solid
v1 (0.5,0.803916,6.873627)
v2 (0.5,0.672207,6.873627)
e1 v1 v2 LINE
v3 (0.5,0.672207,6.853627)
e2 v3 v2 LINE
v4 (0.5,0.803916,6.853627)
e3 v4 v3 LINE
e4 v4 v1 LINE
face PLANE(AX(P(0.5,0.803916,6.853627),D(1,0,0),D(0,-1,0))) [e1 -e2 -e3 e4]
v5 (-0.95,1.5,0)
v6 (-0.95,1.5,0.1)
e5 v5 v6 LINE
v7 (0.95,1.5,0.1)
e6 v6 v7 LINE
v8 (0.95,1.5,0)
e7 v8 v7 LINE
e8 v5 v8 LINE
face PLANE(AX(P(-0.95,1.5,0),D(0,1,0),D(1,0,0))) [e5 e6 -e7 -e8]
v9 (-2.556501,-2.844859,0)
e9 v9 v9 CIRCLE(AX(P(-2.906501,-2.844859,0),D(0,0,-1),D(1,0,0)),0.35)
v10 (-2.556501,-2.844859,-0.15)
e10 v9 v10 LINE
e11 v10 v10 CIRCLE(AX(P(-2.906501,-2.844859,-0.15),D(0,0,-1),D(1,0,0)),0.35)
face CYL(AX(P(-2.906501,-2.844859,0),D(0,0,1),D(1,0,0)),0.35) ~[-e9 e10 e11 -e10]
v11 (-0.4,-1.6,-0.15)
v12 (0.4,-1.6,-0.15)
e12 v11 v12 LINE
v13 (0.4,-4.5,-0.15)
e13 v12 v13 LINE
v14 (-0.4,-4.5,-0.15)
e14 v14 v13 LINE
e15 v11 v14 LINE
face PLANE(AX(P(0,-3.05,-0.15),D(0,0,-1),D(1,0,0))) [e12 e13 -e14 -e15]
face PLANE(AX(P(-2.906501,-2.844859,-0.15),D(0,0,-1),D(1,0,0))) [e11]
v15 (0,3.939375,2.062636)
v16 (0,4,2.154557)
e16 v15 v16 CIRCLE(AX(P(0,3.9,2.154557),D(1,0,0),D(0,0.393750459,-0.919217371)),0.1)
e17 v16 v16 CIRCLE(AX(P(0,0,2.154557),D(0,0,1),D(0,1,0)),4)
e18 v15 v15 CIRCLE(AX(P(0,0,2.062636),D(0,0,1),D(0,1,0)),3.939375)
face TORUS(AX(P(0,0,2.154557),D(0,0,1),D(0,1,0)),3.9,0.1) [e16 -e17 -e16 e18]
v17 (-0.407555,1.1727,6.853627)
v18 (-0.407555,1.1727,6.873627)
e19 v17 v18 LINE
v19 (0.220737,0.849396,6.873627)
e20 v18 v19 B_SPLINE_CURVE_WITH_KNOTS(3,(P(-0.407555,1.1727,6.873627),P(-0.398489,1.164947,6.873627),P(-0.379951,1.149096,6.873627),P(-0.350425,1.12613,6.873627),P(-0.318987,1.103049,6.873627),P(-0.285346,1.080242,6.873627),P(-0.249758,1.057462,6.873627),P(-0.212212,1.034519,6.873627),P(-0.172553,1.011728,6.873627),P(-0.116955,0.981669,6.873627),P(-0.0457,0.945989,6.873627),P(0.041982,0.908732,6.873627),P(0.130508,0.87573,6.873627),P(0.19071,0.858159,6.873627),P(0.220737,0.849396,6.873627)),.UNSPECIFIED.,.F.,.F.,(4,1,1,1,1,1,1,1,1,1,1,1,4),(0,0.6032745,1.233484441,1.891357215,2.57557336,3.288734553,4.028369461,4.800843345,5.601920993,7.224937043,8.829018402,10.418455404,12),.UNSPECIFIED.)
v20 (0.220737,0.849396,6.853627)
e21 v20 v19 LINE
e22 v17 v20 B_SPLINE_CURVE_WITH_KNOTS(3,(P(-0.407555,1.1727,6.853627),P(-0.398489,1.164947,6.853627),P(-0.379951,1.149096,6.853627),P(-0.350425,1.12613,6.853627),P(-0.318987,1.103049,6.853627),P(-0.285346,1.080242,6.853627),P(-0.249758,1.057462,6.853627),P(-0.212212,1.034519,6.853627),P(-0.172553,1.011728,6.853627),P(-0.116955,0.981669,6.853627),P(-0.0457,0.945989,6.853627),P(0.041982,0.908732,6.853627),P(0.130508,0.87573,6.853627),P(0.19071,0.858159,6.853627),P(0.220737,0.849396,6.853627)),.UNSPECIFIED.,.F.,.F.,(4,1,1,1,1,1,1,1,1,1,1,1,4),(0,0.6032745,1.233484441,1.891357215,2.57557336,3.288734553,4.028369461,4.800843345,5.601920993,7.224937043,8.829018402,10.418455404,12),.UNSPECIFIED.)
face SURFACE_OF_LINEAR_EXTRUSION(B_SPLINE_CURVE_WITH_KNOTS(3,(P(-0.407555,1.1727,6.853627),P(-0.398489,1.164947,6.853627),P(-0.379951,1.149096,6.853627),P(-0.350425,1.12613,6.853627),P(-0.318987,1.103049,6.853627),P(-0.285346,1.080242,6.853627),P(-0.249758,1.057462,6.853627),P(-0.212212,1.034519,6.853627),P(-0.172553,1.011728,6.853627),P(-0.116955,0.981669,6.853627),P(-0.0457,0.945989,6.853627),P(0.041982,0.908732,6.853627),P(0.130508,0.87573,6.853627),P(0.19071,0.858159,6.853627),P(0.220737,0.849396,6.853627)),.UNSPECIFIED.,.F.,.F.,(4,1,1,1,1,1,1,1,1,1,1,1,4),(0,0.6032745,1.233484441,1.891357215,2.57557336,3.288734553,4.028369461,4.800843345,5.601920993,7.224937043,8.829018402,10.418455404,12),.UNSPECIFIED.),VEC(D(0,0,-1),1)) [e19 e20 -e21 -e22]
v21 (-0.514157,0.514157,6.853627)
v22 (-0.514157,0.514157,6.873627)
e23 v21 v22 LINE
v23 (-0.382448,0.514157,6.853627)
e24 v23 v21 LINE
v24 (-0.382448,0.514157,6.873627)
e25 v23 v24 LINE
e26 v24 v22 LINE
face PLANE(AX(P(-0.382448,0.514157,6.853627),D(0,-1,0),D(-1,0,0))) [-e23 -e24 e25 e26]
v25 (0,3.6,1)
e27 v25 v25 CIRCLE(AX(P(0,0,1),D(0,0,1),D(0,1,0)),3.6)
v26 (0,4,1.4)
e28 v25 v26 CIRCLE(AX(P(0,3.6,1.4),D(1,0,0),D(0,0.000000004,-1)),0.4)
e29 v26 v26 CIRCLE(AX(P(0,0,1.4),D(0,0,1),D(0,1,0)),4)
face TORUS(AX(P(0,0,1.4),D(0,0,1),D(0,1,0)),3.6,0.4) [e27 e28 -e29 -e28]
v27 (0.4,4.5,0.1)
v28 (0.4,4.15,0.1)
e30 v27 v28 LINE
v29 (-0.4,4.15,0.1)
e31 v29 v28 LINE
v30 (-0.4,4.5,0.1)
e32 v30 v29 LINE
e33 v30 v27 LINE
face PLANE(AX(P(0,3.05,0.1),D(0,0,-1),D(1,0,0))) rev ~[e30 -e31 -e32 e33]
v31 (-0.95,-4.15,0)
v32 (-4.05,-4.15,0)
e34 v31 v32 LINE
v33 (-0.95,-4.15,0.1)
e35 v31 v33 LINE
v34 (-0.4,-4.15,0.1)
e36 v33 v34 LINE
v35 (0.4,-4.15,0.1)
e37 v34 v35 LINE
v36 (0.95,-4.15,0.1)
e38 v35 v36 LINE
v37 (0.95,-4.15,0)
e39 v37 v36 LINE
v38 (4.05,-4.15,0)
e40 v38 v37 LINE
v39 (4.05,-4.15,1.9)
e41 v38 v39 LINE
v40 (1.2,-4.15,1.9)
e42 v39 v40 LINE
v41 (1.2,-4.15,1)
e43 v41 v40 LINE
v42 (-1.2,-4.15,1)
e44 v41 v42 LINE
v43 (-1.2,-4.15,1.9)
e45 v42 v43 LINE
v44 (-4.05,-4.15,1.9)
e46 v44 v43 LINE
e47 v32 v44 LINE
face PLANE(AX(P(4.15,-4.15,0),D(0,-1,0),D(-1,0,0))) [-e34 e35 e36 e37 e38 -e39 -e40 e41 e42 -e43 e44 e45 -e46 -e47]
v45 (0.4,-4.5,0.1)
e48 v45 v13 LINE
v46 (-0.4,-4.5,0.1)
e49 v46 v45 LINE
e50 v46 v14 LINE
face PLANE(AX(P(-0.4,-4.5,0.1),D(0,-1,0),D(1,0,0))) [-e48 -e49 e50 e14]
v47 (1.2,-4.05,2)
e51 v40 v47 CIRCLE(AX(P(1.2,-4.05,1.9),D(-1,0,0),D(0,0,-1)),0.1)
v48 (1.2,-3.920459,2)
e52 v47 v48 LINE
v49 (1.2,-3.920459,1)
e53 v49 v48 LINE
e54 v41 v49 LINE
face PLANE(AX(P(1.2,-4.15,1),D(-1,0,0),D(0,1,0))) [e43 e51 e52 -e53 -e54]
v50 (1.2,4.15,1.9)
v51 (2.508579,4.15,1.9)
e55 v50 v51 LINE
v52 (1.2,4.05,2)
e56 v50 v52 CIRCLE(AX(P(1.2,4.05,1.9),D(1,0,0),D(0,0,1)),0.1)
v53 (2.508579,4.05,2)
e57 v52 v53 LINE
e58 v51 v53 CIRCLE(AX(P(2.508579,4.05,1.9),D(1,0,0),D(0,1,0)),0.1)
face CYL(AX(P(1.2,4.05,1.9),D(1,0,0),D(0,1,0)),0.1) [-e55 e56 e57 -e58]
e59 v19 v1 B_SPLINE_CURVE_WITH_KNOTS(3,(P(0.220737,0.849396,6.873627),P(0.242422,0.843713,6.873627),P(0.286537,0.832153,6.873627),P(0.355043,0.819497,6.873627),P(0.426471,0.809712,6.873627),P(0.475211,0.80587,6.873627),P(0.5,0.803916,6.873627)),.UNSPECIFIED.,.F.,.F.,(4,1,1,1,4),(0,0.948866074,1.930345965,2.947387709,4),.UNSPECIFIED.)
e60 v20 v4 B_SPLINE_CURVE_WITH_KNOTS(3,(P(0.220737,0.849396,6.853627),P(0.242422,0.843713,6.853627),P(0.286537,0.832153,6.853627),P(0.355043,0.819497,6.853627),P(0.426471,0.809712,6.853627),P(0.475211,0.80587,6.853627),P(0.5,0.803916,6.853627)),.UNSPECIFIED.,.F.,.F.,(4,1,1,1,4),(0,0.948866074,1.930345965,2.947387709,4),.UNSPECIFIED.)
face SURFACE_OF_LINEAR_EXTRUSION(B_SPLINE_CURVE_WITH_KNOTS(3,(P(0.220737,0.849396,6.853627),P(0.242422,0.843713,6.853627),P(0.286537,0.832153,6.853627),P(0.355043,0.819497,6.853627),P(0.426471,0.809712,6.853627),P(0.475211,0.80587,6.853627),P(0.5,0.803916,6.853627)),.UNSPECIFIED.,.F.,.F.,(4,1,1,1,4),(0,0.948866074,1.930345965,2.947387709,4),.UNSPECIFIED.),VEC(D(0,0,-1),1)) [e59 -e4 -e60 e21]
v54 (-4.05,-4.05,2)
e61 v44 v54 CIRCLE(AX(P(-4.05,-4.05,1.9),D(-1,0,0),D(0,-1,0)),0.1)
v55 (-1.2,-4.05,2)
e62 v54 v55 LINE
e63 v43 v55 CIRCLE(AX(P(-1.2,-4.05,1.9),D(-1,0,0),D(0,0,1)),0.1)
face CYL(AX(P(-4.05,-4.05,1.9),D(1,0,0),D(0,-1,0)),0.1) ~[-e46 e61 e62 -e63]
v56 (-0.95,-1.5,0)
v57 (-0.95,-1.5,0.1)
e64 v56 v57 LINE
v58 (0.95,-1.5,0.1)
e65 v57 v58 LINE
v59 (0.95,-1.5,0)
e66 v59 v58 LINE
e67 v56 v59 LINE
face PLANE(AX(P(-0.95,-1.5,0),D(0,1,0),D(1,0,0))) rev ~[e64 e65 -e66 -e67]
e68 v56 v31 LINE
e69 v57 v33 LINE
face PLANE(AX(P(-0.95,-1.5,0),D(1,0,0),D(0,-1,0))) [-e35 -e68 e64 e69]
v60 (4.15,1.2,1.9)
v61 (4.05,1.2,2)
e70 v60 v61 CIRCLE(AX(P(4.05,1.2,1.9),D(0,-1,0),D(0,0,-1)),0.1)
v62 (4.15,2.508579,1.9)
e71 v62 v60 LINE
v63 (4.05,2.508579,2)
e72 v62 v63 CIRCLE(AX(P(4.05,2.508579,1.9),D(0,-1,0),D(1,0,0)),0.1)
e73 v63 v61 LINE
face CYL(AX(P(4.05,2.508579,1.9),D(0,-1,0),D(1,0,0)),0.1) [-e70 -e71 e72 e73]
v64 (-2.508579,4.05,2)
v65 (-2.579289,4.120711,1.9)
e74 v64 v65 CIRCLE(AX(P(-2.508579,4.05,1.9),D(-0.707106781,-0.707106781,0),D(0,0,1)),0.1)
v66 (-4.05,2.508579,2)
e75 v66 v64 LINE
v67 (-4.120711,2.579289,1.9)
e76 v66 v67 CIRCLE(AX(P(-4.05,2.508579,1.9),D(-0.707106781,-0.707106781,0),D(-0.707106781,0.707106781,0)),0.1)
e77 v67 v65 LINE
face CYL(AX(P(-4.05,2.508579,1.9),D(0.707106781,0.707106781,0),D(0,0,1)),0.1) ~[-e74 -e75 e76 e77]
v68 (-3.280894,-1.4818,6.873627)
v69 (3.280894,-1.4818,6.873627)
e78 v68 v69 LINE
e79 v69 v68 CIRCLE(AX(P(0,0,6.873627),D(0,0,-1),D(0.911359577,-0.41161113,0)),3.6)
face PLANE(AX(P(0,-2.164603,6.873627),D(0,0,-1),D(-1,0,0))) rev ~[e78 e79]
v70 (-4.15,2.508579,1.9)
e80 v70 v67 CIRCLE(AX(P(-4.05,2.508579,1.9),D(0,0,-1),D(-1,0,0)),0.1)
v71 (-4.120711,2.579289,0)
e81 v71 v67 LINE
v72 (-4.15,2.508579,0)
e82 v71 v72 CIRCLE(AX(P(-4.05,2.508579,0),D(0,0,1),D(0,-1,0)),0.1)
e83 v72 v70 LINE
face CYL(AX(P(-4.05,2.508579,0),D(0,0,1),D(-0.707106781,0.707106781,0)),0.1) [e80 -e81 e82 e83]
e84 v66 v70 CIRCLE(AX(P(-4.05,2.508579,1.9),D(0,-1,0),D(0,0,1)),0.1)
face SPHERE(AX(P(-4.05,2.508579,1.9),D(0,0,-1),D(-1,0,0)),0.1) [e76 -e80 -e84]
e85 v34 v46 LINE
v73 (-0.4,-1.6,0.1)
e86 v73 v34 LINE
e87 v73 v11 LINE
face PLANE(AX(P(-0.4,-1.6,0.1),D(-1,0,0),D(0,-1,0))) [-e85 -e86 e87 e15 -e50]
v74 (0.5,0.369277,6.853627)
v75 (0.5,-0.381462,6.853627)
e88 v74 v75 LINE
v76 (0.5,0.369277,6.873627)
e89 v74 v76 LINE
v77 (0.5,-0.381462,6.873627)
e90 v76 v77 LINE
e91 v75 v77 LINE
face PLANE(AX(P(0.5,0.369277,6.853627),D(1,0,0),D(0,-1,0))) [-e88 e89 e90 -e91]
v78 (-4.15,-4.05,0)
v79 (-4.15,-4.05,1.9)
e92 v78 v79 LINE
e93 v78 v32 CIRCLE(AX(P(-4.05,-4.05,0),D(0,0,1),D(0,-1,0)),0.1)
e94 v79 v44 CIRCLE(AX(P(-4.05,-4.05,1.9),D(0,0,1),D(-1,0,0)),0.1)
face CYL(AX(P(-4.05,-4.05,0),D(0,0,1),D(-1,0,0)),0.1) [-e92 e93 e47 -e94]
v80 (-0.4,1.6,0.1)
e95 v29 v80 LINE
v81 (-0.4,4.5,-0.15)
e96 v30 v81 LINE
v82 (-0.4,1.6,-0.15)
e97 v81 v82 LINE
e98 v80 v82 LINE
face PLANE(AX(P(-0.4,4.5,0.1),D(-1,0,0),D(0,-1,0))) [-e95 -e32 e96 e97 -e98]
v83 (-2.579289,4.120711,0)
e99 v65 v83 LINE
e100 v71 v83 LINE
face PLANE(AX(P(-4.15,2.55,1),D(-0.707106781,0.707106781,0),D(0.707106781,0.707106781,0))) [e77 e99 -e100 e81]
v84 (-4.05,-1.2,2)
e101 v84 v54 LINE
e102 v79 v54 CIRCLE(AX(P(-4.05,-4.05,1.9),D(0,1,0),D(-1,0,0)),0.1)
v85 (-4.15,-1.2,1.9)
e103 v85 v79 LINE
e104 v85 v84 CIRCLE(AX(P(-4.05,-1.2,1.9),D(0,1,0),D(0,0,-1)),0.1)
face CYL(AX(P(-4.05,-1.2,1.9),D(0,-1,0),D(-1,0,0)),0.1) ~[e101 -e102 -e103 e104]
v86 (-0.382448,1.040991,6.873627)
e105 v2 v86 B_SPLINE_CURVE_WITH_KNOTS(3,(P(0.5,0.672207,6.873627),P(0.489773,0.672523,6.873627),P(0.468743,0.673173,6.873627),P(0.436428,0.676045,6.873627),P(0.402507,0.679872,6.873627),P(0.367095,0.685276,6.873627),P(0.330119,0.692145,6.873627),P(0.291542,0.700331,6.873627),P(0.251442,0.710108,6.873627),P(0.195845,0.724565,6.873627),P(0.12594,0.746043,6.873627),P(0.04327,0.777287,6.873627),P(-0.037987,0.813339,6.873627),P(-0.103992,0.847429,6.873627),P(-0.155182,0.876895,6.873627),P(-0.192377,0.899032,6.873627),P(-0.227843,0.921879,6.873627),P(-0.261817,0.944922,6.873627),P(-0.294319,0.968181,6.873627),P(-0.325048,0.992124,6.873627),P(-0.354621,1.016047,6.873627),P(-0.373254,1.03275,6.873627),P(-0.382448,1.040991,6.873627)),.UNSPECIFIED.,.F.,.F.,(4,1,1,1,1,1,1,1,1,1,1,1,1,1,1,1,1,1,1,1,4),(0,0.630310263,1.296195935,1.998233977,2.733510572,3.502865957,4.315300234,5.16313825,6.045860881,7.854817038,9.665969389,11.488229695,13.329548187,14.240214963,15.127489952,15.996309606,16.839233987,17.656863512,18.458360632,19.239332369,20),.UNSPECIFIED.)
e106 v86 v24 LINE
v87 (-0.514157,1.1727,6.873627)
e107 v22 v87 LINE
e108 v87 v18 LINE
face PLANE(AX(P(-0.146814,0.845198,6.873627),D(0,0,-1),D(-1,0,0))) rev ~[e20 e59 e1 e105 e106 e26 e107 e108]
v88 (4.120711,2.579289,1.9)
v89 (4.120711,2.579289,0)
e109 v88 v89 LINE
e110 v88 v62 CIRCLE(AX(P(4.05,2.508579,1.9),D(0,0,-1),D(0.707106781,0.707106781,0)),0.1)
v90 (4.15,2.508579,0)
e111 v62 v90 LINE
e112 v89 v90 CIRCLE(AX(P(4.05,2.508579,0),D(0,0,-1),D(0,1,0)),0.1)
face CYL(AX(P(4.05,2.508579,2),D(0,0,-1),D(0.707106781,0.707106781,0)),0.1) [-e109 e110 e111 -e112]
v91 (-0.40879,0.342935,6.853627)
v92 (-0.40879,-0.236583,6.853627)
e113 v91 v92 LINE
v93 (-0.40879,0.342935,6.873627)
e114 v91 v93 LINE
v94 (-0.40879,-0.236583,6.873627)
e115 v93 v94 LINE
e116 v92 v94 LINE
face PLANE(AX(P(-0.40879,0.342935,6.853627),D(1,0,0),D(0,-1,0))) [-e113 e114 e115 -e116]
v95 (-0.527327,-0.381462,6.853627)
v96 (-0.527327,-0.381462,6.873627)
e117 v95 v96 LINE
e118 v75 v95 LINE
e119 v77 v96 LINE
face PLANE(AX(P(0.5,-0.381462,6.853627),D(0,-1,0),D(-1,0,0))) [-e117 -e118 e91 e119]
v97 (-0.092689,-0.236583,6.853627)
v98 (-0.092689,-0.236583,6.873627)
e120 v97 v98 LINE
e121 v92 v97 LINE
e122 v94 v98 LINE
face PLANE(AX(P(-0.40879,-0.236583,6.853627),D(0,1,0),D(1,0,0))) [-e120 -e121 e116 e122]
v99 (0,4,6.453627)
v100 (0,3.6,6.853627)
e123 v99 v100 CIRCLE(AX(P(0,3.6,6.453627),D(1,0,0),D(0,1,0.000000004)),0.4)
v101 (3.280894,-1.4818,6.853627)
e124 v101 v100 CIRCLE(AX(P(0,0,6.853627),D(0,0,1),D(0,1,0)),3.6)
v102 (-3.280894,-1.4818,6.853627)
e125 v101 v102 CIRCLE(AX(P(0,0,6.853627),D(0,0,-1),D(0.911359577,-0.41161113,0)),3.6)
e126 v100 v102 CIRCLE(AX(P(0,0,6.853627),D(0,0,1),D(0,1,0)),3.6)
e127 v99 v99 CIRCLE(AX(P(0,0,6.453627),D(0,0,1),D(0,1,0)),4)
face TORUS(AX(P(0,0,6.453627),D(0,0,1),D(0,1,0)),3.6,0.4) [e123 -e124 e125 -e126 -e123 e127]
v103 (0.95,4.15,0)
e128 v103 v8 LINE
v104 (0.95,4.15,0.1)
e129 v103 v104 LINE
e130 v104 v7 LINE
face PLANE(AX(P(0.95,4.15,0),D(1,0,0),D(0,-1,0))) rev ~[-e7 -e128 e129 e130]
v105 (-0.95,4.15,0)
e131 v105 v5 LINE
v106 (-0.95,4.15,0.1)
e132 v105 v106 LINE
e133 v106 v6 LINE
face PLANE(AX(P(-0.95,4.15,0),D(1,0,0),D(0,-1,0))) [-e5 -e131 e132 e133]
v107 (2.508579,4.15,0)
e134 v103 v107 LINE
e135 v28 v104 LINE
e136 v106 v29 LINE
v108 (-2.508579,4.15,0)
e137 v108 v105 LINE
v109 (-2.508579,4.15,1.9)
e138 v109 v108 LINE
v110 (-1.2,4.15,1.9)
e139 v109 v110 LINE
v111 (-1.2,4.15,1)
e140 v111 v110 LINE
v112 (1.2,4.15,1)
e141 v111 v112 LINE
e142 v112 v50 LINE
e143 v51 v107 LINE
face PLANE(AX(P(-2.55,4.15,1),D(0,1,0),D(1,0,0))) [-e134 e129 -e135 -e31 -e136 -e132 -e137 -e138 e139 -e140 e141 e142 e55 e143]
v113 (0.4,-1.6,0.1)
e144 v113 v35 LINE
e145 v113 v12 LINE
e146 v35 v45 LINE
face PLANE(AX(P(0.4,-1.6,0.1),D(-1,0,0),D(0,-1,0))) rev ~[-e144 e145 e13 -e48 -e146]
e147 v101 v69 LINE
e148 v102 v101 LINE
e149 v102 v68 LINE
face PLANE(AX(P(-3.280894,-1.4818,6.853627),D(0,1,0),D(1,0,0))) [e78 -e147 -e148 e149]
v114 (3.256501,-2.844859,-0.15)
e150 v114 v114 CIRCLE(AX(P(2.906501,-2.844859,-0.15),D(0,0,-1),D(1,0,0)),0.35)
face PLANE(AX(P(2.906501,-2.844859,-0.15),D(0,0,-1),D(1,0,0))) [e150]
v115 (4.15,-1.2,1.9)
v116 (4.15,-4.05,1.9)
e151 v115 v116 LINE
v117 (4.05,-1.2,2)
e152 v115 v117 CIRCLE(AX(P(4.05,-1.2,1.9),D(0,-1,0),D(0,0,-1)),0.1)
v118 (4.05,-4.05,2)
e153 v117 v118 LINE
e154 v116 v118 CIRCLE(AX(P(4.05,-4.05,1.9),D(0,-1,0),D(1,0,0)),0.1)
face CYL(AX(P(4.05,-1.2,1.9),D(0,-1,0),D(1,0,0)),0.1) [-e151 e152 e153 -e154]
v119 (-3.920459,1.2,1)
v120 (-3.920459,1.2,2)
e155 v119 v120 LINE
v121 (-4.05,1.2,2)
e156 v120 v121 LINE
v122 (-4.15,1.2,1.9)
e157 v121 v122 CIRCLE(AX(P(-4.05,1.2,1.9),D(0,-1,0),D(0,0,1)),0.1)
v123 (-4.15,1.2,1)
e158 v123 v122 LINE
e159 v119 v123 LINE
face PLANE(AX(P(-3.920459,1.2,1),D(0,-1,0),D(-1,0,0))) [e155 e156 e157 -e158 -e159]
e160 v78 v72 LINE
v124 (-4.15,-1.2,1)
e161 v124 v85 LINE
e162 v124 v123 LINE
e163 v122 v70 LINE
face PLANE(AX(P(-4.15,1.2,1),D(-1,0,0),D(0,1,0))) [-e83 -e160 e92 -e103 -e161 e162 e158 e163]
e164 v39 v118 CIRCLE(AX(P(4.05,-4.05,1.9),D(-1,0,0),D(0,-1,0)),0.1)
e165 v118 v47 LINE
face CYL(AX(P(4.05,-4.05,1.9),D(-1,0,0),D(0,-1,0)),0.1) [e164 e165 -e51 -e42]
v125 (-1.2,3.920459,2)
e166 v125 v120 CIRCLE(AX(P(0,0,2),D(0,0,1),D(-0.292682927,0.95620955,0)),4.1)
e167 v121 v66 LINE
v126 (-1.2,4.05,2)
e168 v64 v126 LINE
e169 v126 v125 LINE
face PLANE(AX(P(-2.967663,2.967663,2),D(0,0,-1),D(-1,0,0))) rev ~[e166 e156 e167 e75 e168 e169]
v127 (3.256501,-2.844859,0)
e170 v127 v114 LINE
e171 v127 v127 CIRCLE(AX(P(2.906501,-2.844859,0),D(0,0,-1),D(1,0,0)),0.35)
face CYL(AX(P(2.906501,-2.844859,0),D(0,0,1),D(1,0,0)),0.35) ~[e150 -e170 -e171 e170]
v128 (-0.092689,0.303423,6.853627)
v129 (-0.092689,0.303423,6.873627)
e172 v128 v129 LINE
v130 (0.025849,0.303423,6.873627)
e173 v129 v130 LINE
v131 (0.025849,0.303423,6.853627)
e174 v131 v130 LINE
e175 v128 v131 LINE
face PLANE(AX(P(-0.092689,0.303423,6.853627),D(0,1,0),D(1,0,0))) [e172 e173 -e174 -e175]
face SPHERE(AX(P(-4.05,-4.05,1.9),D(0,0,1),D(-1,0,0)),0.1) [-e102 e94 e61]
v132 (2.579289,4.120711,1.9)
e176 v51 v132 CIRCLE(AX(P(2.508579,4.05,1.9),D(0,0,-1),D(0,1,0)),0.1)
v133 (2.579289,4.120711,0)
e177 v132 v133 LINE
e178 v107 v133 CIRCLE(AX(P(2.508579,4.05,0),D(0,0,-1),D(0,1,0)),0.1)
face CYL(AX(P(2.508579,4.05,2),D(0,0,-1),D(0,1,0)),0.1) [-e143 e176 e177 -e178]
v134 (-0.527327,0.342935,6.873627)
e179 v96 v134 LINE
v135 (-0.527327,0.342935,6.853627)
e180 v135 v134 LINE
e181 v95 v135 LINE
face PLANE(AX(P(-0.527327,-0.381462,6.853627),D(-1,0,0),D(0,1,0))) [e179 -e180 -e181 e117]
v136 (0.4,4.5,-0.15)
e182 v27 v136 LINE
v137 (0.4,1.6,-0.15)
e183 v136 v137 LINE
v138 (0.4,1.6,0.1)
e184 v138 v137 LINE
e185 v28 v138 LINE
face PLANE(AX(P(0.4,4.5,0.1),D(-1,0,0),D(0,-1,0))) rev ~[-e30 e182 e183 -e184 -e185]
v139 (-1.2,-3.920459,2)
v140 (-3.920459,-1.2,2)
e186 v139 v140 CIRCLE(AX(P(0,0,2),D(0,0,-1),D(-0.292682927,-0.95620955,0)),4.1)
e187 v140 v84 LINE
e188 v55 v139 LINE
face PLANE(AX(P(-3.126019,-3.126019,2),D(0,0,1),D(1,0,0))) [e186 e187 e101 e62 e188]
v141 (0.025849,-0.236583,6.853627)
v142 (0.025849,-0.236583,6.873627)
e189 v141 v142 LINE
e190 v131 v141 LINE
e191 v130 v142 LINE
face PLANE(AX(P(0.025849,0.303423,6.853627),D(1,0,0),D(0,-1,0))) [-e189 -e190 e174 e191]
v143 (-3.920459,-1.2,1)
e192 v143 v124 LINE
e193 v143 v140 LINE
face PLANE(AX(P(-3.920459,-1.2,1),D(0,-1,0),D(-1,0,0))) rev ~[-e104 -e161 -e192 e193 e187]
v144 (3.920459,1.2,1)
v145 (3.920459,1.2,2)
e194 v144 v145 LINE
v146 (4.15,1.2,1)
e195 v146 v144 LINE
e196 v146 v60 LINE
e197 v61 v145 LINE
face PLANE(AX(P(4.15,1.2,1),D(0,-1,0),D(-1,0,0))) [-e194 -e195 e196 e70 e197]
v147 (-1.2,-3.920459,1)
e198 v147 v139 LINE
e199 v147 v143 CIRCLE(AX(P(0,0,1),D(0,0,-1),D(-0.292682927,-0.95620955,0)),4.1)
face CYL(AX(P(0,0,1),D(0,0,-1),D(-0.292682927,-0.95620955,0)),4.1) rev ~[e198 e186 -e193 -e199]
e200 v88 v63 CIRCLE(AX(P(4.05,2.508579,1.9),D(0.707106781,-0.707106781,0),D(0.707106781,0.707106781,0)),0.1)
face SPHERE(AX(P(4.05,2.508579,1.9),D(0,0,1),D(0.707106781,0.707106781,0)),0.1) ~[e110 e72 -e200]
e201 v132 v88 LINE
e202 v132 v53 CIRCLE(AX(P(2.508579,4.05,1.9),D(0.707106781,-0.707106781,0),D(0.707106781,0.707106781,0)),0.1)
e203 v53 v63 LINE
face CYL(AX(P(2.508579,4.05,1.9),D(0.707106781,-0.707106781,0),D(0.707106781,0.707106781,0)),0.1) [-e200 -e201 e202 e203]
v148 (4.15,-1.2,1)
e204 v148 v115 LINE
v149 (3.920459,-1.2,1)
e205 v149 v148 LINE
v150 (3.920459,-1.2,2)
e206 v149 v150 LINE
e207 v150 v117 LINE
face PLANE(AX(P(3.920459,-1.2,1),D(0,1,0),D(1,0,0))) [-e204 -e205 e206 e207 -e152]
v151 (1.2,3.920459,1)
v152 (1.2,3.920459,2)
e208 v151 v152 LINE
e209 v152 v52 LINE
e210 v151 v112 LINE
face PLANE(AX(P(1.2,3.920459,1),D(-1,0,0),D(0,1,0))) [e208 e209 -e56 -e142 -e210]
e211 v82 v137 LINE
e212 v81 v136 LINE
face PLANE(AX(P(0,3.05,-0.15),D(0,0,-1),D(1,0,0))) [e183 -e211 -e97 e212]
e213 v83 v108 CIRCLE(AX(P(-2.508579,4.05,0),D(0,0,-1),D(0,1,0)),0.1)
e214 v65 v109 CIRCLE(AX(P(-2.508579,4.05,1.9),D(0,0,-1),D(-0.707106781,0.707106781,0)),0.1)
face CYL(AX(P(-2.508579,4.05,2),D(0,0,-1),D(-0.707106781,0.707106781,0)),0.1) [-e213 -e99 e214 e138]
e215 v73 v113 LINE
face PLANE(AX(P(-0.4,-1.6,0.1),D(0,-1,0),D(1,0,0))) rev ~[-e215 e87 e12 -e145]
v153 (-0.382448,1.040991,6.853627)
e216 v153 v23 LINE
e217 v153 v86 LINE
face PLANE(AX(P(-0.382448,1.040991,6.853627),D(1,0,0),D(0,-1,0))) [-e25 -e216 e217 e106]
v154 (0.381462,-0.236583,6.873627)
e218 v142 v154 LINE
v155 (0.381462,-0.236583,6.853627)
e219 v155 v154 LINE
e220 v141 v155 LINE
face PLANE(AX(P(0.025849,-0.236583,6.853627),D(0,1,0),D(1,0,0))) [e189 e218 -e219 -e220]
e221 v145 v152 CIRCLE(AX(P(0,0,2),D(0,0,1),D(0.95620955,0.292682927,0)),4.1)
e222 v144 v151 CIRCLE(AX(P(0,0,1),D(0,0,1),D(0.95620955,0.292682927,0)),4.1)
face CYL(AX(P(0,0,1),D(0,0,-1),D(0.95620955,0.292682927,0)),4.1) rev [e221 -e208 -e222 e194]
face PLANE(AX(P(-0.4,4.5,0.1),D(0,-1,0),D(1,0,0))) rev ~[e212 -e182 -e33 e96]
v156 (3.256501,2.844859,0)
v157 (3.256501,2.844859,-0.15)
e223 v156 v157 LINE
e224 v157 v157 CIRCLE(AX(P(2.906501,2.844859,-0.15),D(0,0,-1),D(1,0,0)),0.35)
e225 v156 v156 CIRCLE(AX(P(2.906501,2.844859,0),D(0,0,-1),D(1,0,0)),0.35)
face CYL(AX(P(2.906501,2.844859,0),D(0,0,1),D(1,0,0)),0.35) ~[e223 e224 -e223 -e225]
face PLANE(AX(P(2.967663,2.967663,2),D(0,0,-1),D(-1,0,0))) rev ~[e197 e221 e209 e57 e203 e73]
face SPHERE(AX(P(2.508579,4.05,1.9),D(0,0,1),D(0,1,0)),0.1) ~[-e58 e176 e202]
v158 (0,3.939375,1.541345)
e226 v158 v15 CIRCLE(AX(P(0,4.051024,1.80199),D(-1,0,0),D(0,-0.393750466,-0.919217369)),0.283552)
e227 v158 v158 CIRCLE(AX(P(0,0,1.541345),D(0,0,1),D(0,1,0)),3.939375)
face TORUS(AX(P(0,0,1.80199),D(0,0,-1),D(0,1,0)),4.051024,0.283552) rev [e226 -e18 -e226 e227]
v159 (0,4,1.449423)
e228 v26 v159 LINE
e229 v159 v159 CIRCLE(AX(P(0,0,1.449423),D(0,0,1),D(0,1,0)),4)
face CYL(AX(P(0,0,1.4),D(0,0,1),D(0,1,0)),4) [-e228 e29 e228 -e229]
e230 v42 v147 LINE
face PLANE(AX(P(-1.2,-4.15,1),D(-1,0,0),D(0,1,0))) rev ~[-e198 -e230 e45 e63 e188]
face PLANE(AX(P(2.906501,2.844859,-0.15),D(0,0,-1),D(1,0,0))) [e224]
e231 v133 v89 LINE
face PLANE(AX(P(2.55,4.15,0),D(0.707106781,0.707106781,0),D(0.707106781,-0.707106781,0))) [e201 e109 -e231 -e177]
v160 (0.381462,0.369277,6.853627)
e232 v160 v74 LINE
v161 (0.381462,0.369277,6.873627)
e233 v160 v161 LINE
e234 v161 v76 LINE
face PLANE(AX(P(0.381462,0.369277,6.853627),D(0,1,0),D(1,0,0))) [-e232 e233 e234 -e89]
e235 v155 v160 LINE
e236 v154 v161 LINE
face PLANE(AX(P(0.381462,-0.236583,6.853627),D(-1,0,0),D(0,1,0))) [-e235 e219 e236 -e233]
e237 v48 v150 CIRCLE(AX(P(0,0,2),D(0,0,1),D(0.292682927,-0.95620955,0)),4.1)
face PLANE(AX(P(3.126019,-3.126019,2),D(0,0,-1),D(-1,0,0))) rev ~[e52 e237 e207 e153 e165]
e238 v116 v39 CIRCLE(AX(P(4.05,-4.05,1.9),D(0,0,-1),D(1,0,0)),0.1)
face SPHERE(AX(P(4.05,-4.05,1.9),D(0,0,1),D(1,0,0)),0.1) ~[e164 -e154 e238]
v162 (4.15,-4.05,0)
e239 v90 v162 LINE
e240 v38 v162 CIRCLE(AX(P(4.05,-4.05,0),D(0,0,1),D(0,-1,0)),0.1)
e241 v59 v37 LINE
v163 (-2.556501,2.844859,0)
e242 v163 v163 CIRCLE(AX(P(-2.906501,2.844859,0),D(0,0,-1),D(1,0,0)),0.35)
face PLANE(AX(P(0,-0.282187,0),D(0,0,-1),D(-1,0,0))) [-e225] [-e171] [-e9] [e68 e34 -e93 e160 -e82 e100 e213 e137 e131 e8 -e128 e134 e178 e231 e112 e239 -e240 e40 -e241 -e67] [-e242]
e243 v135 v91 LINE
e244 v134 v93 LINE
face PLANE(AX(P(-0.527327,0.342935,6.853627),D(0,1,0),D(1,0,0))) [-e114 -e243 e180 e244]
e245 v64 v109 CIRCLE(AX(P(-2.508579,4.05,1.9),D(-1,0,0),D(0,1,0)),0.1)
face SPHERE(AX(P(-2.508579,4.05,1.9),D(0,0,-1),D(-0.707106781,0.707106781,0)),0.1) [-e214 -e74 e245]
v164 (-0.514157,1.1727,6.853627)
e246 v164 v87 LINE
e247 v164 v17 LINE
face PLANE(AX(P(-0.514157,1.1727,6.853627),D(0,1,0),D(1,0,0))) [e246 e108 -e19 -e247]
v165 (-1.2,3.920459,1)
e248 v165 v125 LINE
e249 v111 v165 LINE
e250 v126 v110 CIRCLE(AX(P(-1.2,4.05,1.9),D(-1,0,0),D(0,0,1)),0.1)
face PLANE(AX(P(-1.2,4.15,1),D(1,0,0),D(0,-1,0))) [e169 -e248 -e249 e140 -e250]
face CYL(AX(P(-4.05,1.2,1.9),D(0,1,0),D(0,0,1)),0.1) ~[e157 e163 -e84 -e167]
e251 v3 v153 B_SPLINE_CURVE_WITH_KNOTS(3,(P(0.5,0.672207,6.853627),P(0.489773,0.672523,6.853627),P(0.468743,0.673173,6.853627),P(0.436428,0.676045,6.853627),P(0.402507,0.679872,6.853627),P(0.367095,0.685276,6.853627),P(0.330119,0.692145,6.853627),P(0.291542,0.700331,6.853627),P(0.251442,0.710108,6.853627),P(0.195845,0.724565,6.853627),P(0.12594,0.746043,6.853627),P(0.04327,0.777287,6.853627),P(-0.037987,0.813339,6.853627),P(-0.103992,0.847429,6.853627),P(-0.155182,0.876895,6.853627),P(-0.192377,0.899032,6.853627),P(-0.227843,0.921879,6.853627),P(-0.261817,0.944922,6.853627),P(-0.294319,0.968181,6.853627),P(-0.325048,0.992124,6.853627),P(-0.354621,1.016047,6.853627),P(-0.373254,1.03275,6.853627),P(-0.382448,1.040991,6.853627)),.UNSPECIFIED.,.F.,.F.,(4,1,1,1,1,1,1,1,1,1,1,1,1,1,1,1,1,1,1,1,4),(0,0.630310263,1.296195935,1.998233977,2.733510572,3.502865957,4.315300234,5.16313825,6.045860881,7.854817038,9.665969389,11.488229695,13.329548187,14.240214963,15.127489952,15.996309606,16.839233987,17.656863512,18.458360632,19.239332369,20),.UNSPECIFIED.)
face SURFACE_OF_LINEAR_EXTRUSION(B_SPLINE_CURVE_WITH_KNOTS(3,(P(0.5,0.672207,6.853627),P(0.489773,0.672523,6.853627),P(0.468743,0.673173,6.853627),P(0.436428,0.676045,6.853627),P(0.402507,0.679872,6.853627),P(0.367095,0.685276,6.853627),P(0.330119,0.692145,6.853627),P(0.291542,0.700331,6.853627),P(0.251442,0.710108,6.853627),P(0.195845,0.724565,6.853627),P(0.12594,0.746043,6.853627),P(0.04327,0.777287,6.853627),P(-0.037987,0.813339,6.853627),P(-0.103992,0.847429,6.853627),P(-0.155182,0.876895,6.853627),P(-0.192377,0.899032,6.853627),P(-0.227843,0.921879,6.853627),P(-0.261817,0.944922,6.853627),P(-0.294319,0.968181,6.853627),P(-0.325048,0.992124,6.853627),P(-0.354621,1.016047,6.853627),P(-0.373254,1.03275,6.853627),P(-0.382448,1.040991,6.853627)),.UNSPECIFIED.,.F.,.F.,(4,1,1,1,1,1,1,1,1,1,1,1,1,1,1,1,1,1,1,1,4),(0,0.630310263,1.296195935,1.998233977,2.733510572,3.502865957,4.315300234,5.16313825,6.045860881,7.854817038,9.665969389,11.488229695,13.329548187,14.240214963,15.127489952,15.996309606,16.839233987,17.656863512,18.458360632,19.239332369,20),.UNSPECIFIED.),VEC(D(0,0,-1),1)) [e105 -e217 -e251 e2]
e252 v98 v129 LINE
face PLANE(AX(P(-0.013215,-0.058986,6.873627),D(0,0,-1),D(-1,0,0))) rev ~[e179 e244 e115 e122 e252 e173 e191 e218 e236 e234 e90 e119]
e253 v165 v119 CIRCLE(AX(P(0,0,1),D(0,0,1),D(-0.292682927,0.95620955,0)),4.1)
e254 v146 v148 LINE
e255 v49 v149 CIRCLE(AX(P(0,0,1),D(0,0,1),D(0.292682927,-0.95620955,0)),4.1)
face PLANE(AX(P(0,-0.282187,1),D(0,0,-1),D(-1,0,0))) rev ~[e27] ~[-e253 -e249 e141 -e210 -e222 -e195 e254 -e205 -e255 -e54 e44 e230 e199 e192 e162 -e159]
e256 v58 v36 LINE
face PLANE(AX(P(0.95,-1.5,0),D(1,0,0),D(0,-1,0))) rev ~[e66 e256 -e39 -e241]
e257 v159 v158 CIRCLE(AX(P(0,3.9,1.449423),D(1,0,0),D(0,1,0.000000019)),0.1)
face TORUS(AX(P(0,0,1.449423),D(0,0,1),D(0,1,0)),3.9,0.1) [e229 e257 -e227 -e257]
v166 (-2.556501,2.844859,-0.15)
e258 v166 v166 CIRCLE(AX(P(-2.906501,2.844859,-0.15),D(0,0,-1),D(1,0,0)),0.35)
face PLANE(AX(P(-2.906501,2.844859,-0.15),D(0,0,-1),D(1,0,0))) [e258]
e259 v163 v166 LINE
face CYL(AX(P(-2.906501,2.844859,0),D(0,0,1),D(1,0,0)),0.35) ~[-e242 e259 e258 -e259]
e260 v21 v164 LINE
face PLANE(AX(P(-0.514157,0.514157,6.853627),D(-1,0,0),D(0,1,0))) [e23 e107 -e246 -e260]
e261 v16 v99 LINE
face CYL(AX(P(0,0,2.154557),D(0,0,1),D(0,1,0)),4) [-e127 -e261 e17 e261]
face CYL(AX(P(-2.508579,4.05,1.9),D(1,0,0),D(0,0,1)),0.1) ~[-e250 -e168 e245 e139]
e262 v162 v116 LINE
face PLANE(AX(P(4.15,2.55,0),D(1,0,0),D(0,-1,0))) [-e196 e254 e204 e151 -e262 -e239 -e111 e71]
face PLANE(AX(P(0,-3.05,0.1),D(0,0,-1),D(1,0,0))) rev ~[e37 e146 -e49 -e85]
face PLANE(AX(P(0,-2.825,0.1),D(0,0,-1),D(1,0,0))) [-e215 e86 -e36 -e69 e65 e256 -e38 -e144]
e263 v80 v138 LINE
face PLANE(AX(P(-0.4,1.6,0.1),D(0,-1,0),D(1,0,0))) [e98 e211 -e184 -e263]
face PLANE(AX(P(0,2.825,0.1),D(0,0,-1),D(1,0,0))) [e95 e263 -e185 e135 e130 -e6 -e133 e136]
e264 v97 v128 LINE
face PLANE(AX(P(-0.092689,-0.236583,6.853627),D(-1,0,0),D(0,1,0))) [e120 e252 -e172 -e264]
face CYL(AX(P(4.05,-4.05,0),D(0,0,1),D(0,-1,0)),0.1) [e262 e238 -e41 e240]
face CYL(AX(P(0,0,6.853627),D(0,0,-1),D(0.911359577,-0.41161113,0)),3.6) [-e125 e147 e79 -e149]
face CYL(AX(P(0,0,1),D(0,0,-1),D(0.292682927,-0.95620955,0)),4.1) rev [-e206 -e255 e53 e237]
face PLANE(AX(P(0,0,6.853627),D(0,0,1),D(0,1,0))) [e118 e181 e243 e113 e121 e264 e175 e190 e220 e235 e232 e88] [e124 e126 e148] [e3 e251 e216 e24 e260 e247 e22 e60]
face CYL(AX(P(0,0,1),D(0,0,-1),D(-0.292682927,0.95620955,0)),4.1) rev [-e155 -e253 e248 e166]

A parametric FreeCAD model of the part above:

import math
import FreeCAD as App
import Part
import Sketcher

V = App.Vector


def edges_at(feature, points):
    """Names of the edges that pass closest to the given points."""
    edges = feature.Shape.Edges
    near = lambda p: min(range(len(edges)), key=lambda i: edges[i].distToShape(Part.Vertex(*p))[0])
    return sorted({f"Edge{near(p) + 1}" for p in points})


def add_polygon(sketch, points):
    """Adds a closed chain of lines whose ends are joined by coincident constraints."""
    first, n = sketch.GeometryCount, len(points)
    for a, b in zip(points, points[1:] + points[:1]):
        sketch.addGeometry(Part.LineSegment(App.Vector(*a, 0), App.Vector(*b, 0)), False)
    for i in range(n):
        sketch.addConstraint(Sketcher.Constraint("Coincident", first + i, 2, first + (i + 1) % n, 1))

doc = App.newDocument("Part")
body = doc.addObject("PartDesign::Body", "Body")

# Sketch on XY plane
sketch1 = body.newObject("Sketcher::SketchObject", "Sketch")
sketch1.AttachmentSupport = (doc.getObject("XY_Plane"), [""])
sketch1.MapMode = "FlatFace"
add_polygon(sketch1, [(-2.5, 4.2), (-4.2, 2.5), (-4.2, -4.2), (4.2, -4.2), (4.2, 2.5), (2.5, 4.2)])  # lines 0-5
sketch1.addConstraint([
    Sketcher.Constraint("Vertical", 1),
    Sketcher.Constraint("Horizontal", 2),
    Sketcher.Constraint("Vertical", 3),
    Sketcher.Constraint("Horizontal", 5),
    Sketcher.Constraint("Symmetric", 0, 2, 3, 2, -2),
    Sketcher.Constraint("Perpendicular", 0, 4),
    Sketcher.Constraint("Equal", 0, 4),
    Sketcher.Constraint("DistanceX", 2, 1, 2, 2, 8.3),
    Sketcher.Constraint("DistanceX", 5, 2, 5, 1, 5.1),
    Sketcher.Constraint("DistanceY", 1, 2, 1, 1, 6.7),
    Sketcher.Constraint("DistanceY", -1, 1, 0, 2, 2.55),
])
pad1 = body.newObject("PartDesign::Pad", "Pad")
pad1.Profile = sketch1
pad1.Length = 1

# Sketch on XY plane
sketch2 = body.newObject("Sketcher::SketchObject", "Sketch001")
sketch2.AttachmentSupport = (doc.getObject("XY_Plane"), [""])
sketch2.MapMode = "FlatFace"
sketch2.AttachmentOffset = App.Placement(V(0, 0, 1), App.Rotation())
sketch2.addGeometry([
    Part.LineSegment(V(-2.55, 4.15, 0), V(-4.15, 2.55, 0)),  # 0
    Part.LineSegment(V(-4.15, 2.55, 0), V(-4.15, 1.2, 0)),  # 1
    Part.LineSegment(V(-4.15, 1.2, 0), V(-3.92, 1.2, 0)),  # 2
    Part.ArcOfCircle(Part.Circle(V(0, 0, 0), V(0, 0, 1), 4.1), math.radians(107), math.radians(163)),  # 3
    Part.LineSegment(V(-1.2, 3.92, 0), V(-1.2, 4.15, 0)),  # 4
    Part.LineSegment(V(-1.2, 4.15, 0), V(-2.55, 4.15, 0)),  # 5
    Part.LineSegment(V(4.15, 2.55, 0), V(2.55, 4.15, 0)),  # 6
    Part.LineSegment(V(2.55, 4.15, 0), V(1.2, 4.15, 0)),  # 7
    Part.LineSegment(V(1.2, 4.15, 0), V(1.2, 3.92, 0)),  # 8
    Part.ArcOfCircle(Part.Circle(V(0, 0, 0), V(0, 0, 1), 4.1), math.radians(17), math.radians(73)),  # 9
    Part.LineSegment(V(3.92, 1.2, 0), V(4.15, 1.2, 0)),  # 10
    Part.LineSegment(V(4.15, 1.2, 0), V(4.15, 2.55, 0)),  # 11
    Part.LineSegment(V(4.15, -4.15, 0), V(4.15, -1.2, 0)),  # 12
    Part.LineSegment(V(4.15, -1.2, 0), V(3.92, -1.2, 0)),  # 13
    Part.ArcOfCircle(Part.Circle(V(0, 0, 0), V(0, 0, 1), 4.1), math.radians(-73), math.radians(-17)),  # 14
    Part.LineSegment(V(1.2, -3.92, 0), V(1.2, -4.15, 0)),  # 15
    Part.LineSegment(V(1.2, -4.15, 0), V(4.15, -4.15, 0)),  # 16
    Part.LineSegment(V(-4.15, -1.2, 0), V(-4.15, -4.15, 0)),  # 17
    Part.LineSegment(V(-4.15, -4.15, 0), V(-1.2, -4.15, 0)),  # 18
    Part.LineSegment(V(-1.2, -4.15, 0), V(-1.2, -3.92, 0)),  # 19
    Part.ArcOfCircle(Part.Circle(V(0, 0, 0), V(0, 0, 1), 4.1), math.radians(-163), math.radians(-107)),  # 20
    Part.LineSegment(V(-3.92, -1.2, 0), V(-4.15, -1.2, 0)),  # 21
], False)
sketch2.addConstraint([
    Sketcher.Constraint("Coincident", 0, 2, 1, 1),
    Sketcher.Constraint("Coincident", 1, 2, 2, 1),
    Sketcher.Constraint("Coincident", 2, 2, 3, 2),
    Sketcher.Constraint("Coincident", 3, 1, 4, 1),
    Sketcher.Constraint("Coincident", 4, 2, 5, 1),
    Sketcher.Constraint("Coincident", 5, 2, 0, 1),
    Sketcher.Constraint("Coincident", 6, 2, 7, 1),
    Sketcher.Constraint("Coincident", 7, 2, 8, 1),
    Sketcher.Constraint("Coincident", 8, 2, 9, 2),
    Sketcher.Constraint("Coincident", 9, 1, 10, 1),
    Sketcher.Constraint("Coincident", 10, 2, 11, 1),
    Sketcher.Constraint("Coincident", 11, 2, 6, 1),
    Sketcher.Constraint("Coincident", 12, 2, 13, 1),
    Sketcher.Constraint("Coincident", 13, 2, 14, 2),
    Sketcher.Constraint("Coincident", 14, 1, 15, 1),
    Sketcher.Constraint("Coincident", 15, 2, 16, 1),
    Sketcher.Constraint("Coincident", 16, 2, 12, 1),
    Sketcher.Constraint("Coincident", 17, 2, 18, 1),
    Sketcher.Constraint("Coincident", 18, 2, 19, 1),
    Sketcher.Constraint("Coincident", 19, 2, 20, 2),
    Sketcher.Constraint("Coincident", 20, 1, 21, 1),
    Sketcher.Constraint("Coincident", 21, 2, 17, 1),
    Sketcher.Constraint("Vertical", 1),
    Sketcher.Constraint("Horizontal", 2),
    Sketcher.Constraint("Vertical", 4),
    Sketcher.Constraint("Horizontal", 5),
    Sketcher.Constraint("Horizontal", 7),
    Sketcher.Constraint("Vertical", 8),
    Sketcher.Constraint("Horizontal", 10),
    Sketcher.Constraint("Vertical", 11),
    Sketcher.Constraint("Vertical", 12),
    Sketcher.Constraint("Horizontal", 13),
    Sketcher.Constraint("Vertical", 15),
    Sketcher.Constraint("Horizontal", 16),
    Sketcher.Constraint("Vertical", 17),
    Sketcher.Constraint("Horizontal", 18),
    Sketcher.Constraint("Vertical", 19),
    Sketcher.Constraint("Horizontal", 21),
    Sketcher.Constraint("Coincident", 3, 3, -1, 1),
    Sketcher.Constraint("Coincident", 9, 3, -1, 1),
    Sketcher.Constraint("Coincident", 14, 3, -1, 1),
    Sketcher.Constraint("Coincident", 20, 3, -1, 1),
    Sketcher.Constraint("Equal", 3, 9),
    Sketcher.Constraint("Equal", 9, 14),
    Sketcher.Constraint("Equal", 14, 20),
    Sketcher.Constraint("Symmetric", 1, 2, 12, 2, -1, 1),
    Sketcher.Constraint("Symmetric", 4, 2, 15, 2, -1, 1),
    Sketcher.Constraint("Symmetric", 7, 2, 18, 2, -1, 1),
    Sketcher.Constraint("Symmetric", 10, 2, 21, 2, -1, 1),
    Sketcher.Constraint("Symmetric", 5, 2, 6, 2, -2),
    Sketcher.Constraint("Symmetric", 1, 2, 10, 2, -2),
    Sketcher.Constraint("Perpendicular", 0, 6),
    Sketcher.Constraint("Horizontal", 3, 1, 8, 2),
    Sketcher.Constraint("Horizontal", 0, 2, 11, 2),
    Sketcher.Constraint("Equal", 7, 1),
    Sketcher.Constraint("Equal", 21, 4),
    Sketcher.Constraint("Radius", 3, 4.1),
    Sketcher.Constraint("DistanceX", 5, 2, 5, 1, 1.35),
    Sketcher.Constraint("DistanceX", 16, 1, 16, 2, 2.95),
    Sketcher.Constraint("DistanceY", -1, 1, 1, 2, 1.2),
])
pad2 = body.newObject("PartDesign::Pad", "Pad001")
pad2.Profile = sketch2
pad2.Length = 1

# Sketch on XY plane
sketch3 = body.newObject("Sketcher::SketchObject", "Sketch002")
sketch3.AttachmentSupport = (doc.getObject("XY_Plane"), [""])
sketch3.MapMode = "FlatFace"
sketch3.addGeometry([
    Part.Circle(V(-2.91, -2.84, 0), V(0, 0, 1), 0.35),
    Part.Circle(V(2.91, -2.84, 0), V(0, 0, 1), 0.35),
    Part.Circle(V(-2.91, 2.84, 0), V(0, 0, 1), 0.35),
    Part.Circle(V(2.91, 2.84, 0), V(0, 0, 1), 0.35),
], False)
sketch3.addConstraint([
    Sketcher.Constraint("Equal", 0, 1),
    Sketcher.Constraint("Equal", 1, 2),
    Sketcher.Constraint("Equal", 2, 3),
    Sketcher.Constraint("Symmetric", 1, 3, 2, 3, -1, 1),
    Sketcher.Constraint("Symmetric", 0, 3, 3, 3, -1, 1),
    Sketcher.Constraint("Symmetric", 0, 3, 1, 3, -2),
    Sketcher.Constraint("Diameter", 0, 0.7),
    Sketcher.Constraint("DistanceX", 0, 3, -1, 1, 2.906501),
    Sketcher.Constraint("DistanceY", 0, 3, -1, 1, 2.844859),
])
pad3 = body.newObject("PartDesign::Pad", "Pad002")
pad3.Profile = sketch3
pad3.Length = 0.15
pad3.Reversed = True

# Sketch on XY plane
sketch4 = body.newObject("Sketcher::SketchObject", "Sketch003")
sketch4.AttachmentSupport = (doc.getObject("XY_Plane"), [""])
sketch4.MapMode = "FlatFace"
add_polygon(sketch4, [(-0.9, -4.2), (-0.9, -1.5), (0.9, -1.5), (0.9, -4.2)])  # lines 0-3
add_polygon(sketch4, [(-0.9, 1.5), (-0.9, 4.2), (0.9, 4.2), (0.9, 1.5)])  # lines 4-7
sketch4.addConstraint([
    Sketcher.Constraint("Vertical", 0),
    Sketcher.Constraint("Horizontal", 1),
    Sketcher.Constraint("Vertical", 2),
    Sketcher.Constraint("Horizontal", 3),
    Sketcher.Constraint("Vertical", 4),
    Sketcher.Constraint("Horizontal", 5),
    Sketcher.Constraint("Vertical", 6),
    Sketcher.Constraint("Horizontal", 7),
    Sketcher.Constraint("Symmetric", 2, 2, 4, 2, -1, 1),
    Sketcher.Constraint("Symmetric", 0, 2, 6, 2, -1, 1),
    Sketcher.Constraint("Vertical", 3, 2, 4, 2),
    Sketcher.Constraint("DistanceX", 1, 1, 1, 2, 1.9),
    Sketcher.Constraint("DistanceY", 1, 2, 6, 2, 3.0),
    Sketcher.Constraint("DistanceY", 0, 1, 0, 2, 2.65),
])
pocket1 = body.newObject("PartDesign::Pocket", "Pocket")
pocket1.Profile = sketch4
pocket1.Length = 0.1
pocket1.Reversed = True
doc.recompute()

fillet = body.newObject("PartDesign::Fillet", "Fillet")
fillet.Base = (pocket1, edges_at(pocket1, [
    (4.15, -4.15, 1),
    (-4.15, -4.15, 1),
    (-4.15, 2.55, 1),
    (-2.55, 4.15, 1),
    (2.55, 4.15, 1),
    (4.15, 2.55, 1),
]))
fillet.Radius = 0.1

# Sketch on YZ plane
sketch5 = body.newObject("Sketcher::SketchObject", "Sketch004")
sketch5.AttachmentSupport = (doc.getObject("YZ_Plane"), [""])
sketch5.MapMode = "FlatFace"
sketch5.addGeometry([
    Part.LineSegment(V(0, 6.854, 0), V(0, 1, 0)),  # 0
    Part.LineSegment(V(0, 1, 0), V(3.6, 1, 0)),  # 1
    Part.ArcOfCircle(Part.Circle(V(3.6, 1.4, 0), V(0, 0, 1), 0.4), math.radians(-90), math.radians(0)),  # 2
    Part.LineSegment(V(4, 1.4, 0), V(4, 1.449, 0)),  # 3
    Part.ArcOfCircle(Part.Circle(V(3.9, 1.449, 0), V(0, 0, 1), 0.1), math.radians(0), math.radians(67)),  # 4
    Part.ArcOfCircle(Part.Circle(V(4.051, 1.802, 0), V(0, 0, 1), 0.284), math.radians(113), math.radians(247)),  # 5
    Part.ArcOfCircle(Part.Circle(V(3.9, 2.155, 0), V(0, 0, 1), 0.1), math.radians(-67), math.radians(0)),  # 6
    Part.LineSegment(V(4, 2.155, 0), V(4, 6.454, 0)),  # 7
    Part.ArcOfCircle(Part.Circle(V(3.6, 6.454, 0), V(0, 0, 1), 0.4), math.radians(0), math.radians(90)),  # 8
    Part.LineSegment(V(3.6, 6.854, 0), V(0, 6.854, 0)),  # 9
], False)
sketch5.addConstraint([
    Sketcher.Constraint("Coincident", 0, 2, 1, 1),
    Sketcher.Constraint("Tangent", 1, 2, 2, 1),
    Sketcher.Constraint("Tangent", 2, 2, 3, 1),
    Sketcher.Constraint("Tangent", 3, 2, 4, 1),
    Sketcher.Constraint("Tangent", 4, 2, 5, 2),
    Sketcher.Constraint("Tangent", 5, 1, 6, 1),
    Sketcher.Constraint("Tangent", 6, 2, 7, 1),
    Sketcher.Constraint("Tangent", 7, 2, 8, 1),
    Sketcher.Constraint("Tangent", 8, 2, 9, 1),
    Sketcher.Constraint("Coincident", 9, 2, 0, 1),
    Sketcher.Constraint("Vertical", 0),
    Sketcher.Constraint("Horizontal", 1),
    Sketcher.Constraint("Vertical", 3),
    Sketcher.Constraint("Vertical", 7),
    Sketcher.Constraint("Horizontal", 9),
    Sketcher.Constraint("Equal", 4, 6),
    Sketcher.Constraint("Equal", 2, 8),
    Sketcher.Constraint("PointOnObject", 0, 2, -2),
    Sketcher.Constraint("Vertical", 4, 3, 6, 3),
    Sketcher.Constraint("Radius", 2, 0.4),
    Sketcher.Constraint("Radius", 4, 0.1),
    Sketcher.Constraint("DistanceX", 1, 1, 1, 2, 3.6),
    Sketcher.Constraint("DistanceY", -1, 1, 0, 2, 1.0),
    Sketcher.Constraint("Radius", 5, 0.283552),
    Sketcher.Constraint("DistanceY", 7, 1, 7, 2, 4.299069),
    Sketcher.Constraint("DistanceY", 0, 2, 0, 1, 5.853627),
    Sketcher.Constraint("DistanceY", 3, 1, 3, 2, 0.049423),
])
revolution = body.newObject("PartDesign::Revolution", "Revolution")
revolution.Profile = sketch5
revolution.ReferenceAxis = (sketch5, ["V_Axis"])
revolution.Angle = 360
doc.recompute()

fillet2 = body.newObject("PartDesign::Fillet", "Fillet001")
fillet2.Base = (revolution, edges_at(revolution, [
    (2.625, -4.15, 2),
    (4.121, -4.121, 2),
    (4.15, 1.854, 2),
    (4.142, 2.547, 2),
    (1.854, 4.15, 2),
    (2.547, 4.142, 2),
    (-1.854, 4.15, 2),
    (-2.547, 4.142, 2),
    (-3.35, 3.35, 2),
    (-4.142, 2.547, 2),
    (-4.15, -2.625, 2),
    (-4.121, -4.121, 2),
    (4.15, -2.625, 2),
    (3.35, 3.35, 2),
    (-4.15, 1.854, 2),
    (-2.625, -4.15, 2),
]))
fillet2.Radius = 0.1

# Sketch on XY plane
sketch6 = body.newObject("Sketcher::SketchObject", "Sketch005")
sketch6.AttachmentSupport = (doc.getObject("XY_Plane"), [""])
sketch6.MapMode = "FlatFace"
sketch6.AttachmentOffset = App.Placement(V(0, 0, 6.853627), App.Rotation())
sketch6.addGeometry([
    Part.LineSegment(V(3.3, -1.5, 0), V(-3.3, -1.5, 0)),
    Part.ArcOfCircle(Part.Circle(V(0, 0, 0), V(0, 0, 1), 3.6), math.radians(-156), math.radians(-24)),
], False)
sketch6.addConstraint([
    Sketcher.Constraint("Coincident", 0, 1, 1, 2),
    Sketcher.Constraint("Coincident", 1, 1, 0, 2),
    Sketcher.Constraint("Horizontal", 0),
    Sketcher.Constraint("Coincident", 1, 3, -1, 1),
    Sketcher.Constraint("Radius", 1, 3.6),
    Sketcher.Constraint("DistanceX", 0, 2, 0, 1, 6.561789),
])
pad4 = body.newObject("PartDesign::Pad", "Pad003")
pad4.Profile = sketch6
pad4.Length = 0.02

# Sketch on XY plane
sketch7 = body.newObject("Sketcher::SketchObject", "Sketch006")
sketch7.AttachmentSupport = (doc.getObject("XY_Plane"), [""])
sketch7.MapMode = "FlatFace"
sketch7.AttachmentOffset = App.Placement(V(0, 0, 6.853627), App.Rotation())
add_polygon(sketch7, [(-0.527327, -0.381462), (0.5, -0.381462), (0.5, 0.369277), (0.381462, 0.369277), (0.381462, -0.236583), (0.025849, -0.236583), (0.025849, 0.303423), (-0.092689, 0.303423), (-0.092689, -0.236583), (-0.40879, -0.236583), (-0.40879, 0.342935), (-0.527327, 0.342935)])  # lines 0-11
sketch7.addGeometry(Part.LineSegment(V(-0.514157, 0.514157, 0), V(-0.382448, 0.514157, 0)), False)  # 12
sketch7.addGeometry(Part.LineSegment(V(-0.382448, 0.514157, 0), V(-0.382448, 1.040991, 0)), False)  # 13
sketch7.addGeometry(Part.BSplineCurve([V(0.5, 0.672207, 0), V(0.489773, 0.672523, 0), V(0.468743, 0.673173, 0), V(0.436428, 0.676045, 0), V(0.402507, 0.679872, 0), V(0.367095, 0.685276, 0), V(0.330119, 0.692145, 0), V(0.291542, 0.700331, 0), V(0.251442, 0.710108, 0), V(0.195845, 0.724565, 0), V(0.12594, 0.746043, 0), V(0.04327, 0.777287, 0), V(-0.037987, 0.813339, 0), V(-0.103992, 0.847429, 0), V(-0.155182, 0.876895, 0), V(-0.192377, 0.899032, 0), V(-0.227843, 0.921879, 0), V(-0.261817, 0.944922, 0), V(-0.294319, 0.968181, 0), V(-0.325048, 0.992124, 0), V(-0.354621, 1.016047, 0), V(-0.373254, 1.03275, 0), V(-0.382448, 1.040991, 0)], [4, 1, 1, 1, 1, 1, 1, 1, 1, 1, 1, 1, 1, 1, 1, 1, 1, 1, 1, 1, 4], [0, 0.630310263, 1.296195935, 1.998233977, 2.733510572, 3.502865957, 4.315300234, 5.16313825, 6.045860881, 7.854817038, 9.665969389, 11.488229695, 13.329548187, 14.240214963, 15.127489952, 15.996309606, 16.839233987, 17.656863512, 18.458360632, 19.239332369, 20], False, 3, [1, 1, 1, 1, 1, 1, 1, 1, 1, 1, 1, 1, 1, 1, 1, 1, 1, 1, 1, 1, 1, 1, 1], False), False)  # 14
sketch7.addGeometry(Part.LineSegment(V(0.5, 0.672207, 0), V(0.5, 0.803916, 0)), False)  # 15
sketch7.addGeometry(Part.BSplineCurve([V(0.220737, 0.849396, 0), V(0.242422, 0.843713, 0), V(0.286537, 0.832153, 0), V(0.355043, 0.819497, 0), V(0.426471, 0.809712, 0), V(0.475211, 0.80587, 0), V(0.5, 0.803916, 0)], [4, 1, 1, 1, 4], [0, 0.948866074, 1.930345965, 2.947387709, 4], False, 3, [1, 1, 1, 1, 1, 1, 1], False), False)  # 16
sketch7.addGeometry(Part.BSplineCurve([V(-0.407555, 1.1727, 0), V(-0.398489, 1.164947, 0), V(-0.379951, 1.149096, 0), V(-0.350425, 1.12613, 0), V(-0.318987, 1.103049, 0), V(-0.285346, 1.080242, 0), V(-0.249758, 1.057462, 0), V(-0.212212, 1.034519, 0), V(-0.172553, 1.011728, 0), V(-0.116955, 0.981669, 0), V(-0.0457, 0.945989, 0), V(0.041982, 0.908732, 0), V(0.130508, 0.87573, 0), V(0.19071, 0.858159, 0), V(0.220737, 0.849396, 0)], [4, 1, 1, 1, 1, 1, 1, 1, 1, 1, 1, 1, 4], [0, 0.6032745, 1.233484441, 1.891357215, 2.57557336, 3.288734553, 4.028369461, 4.800843345, 5.601920993, 7.224937043, 8.829018402, 10.418455404, 12], False, 3, [1, 1, 1, 1, 1, 1, 1, 1, 1, 1, 1, 1, 1, 1, 1], False), False)  # 17
sketch7.addGeometry(Part.LineSegment(V(-0.407555, 1.1727, 0), V(-0.514157, 1.1727, 0)), False)  # 18
sketch7.addGeometry(Part.LineSegment(V(-0.514157, 1.1727, 0), V(-0.514157, 0.514157, 0)), False)  # 19
sketch7.addConstraint([
    Sketcher.Constraint("Block", 14),
    Sketcher.Constraint("Block", 16),
    Sketcher.Constraint("Block", 17),
    Sketcher.Constraint("Coincident", 12, 2, 13, 1),
    Sketcher.Constraint("Coincident", 13, 2, 14, 2),
    Sketcher.Constraint("Coincident", 14, 1, 15, 1),
    Sketcher.Constraint("Coincident", 15, 2, 16, 2),
    Sketcher.Constraint("Coincident", 17, 1, 18, 1),
    Sketcher.Constraint("Coincident", 18, 2, 19, 1),
    Sketcher.Constraint("Coincident", 19, 2, 12, 1),
    Sketcher.Constraint("Horizontal", 0),
    Sketcher.Constraint("Vertical", 1),
    Sketcher.Constraint("Horizontal", 2),
    Sketcher.Constraint("Vertical", 3),
    Sketcher.Constraint("Horizontal", 4),
    Sketcher.Constraint("Vertical", 5),
    Sketcher.Constraint("Horizontal", 6),
    Sketcher.Constraint("Vertical", 7),
    Sketcher.Constraint("Horizontal", 8),
    Sketcher.Constraint("Vertical", 9),
    Sketcher.Constraint("Horizontal", 10),
    Sketcher.Constraint("Vertical", 11),
    Sketcher.Constraint("Horizontal", 12),
    Sketcher.Constraint("Vertical", 13),
    Sketcher.Constraint("Horizontal", 18),
    Sketcher.Constraint("Vertical", 19),
    Sketcher.Constraint("DistanceX", -1, 1, 0, 2, 0.5),
    Sketcher.Constraint("DistanceX", 8, 2, 8, 1, 0.316101),
    Sketcher.Constraint("DistanceX", 18, 2, 18, 1, 0.106602),
    Sketcher.Constraint("DistanceY", 1, 1, 1, 2, 0.750739),
    Sketcher.Constraint("DistanceY", 3, 2, 3, 1, 0.60586),
    Sketcher.Constraint("DistanceY", 9, 1, 9, 2, 0.579518),
    Sketcher.Constraint("DistanceX", 0, 1, 0, 2, 1.027327),
    Sketcher.Constraint("DistanceX", 2, 2, 2, 1, 0.118538),
    Sketcher.Constraint("DistanceX", 4, 2, 4, 1, 0.355613),
    Sketcher.Constraint("DistanceX", 6, 2, 6, 1, 0.118538),
    Sketcher.Constraint("DistanceY", 5, 1, 5, 2, 0.540005),
    Sketcher.Constraint("DistanceY", 7, 2, 7, 1, 0.540005),
    Sketcher.Constraint("DistanceY", 13, 1, 13, 2, 0.526835),
    Sketcher.Constraint("DistanceY", 9, 2, 12, 2, 0.171221),
])
pad5 = body.newObject("PartDesign::Pad", "Pad004")
pad5.Profile = sketch7
pad5.Length = 0.02

# Sketch on XY plane
sketch8 = body.newObject("Sketcher::SketchObject", "Sketch007")
sketch8.AttachmentSupport = (doc.getObject("XY_Plane"), [""])
sketch8.MapMode = "FlatFace"
sketch8.AttachmentOffset = App.Placement(V(0, 0, 0.1), App.Rotation())
add_polygon(sketch8, [(-0.4, -4.5), (-0.4, -1.6), (0.4, -1.6), (0.4, -4.5)])  # lines 0-3
add_polygon(sketch8, [(-0.4, 1.6), (-0.4, 4.5), (0.4, 4.5), (0.4, 1.6)])  # lines 4-7
sketch8.addConstraint([
    Sketcher.Constraint("Vertical", 0),
    Sketcher.Constraint("Horizontal", 1),
    Sketcher.Constraint("Vertical", 2),
    Sketcher.Constraint("Horizontal", 3),
    Sketcher.Constraint("Vertical", 4),
    Sketcher.Constraint("Horizontal", 5),
    Sketcher.Constraint("Vertical", 6),
    Sketcher.Constraint("Horizontal", 7),
    Sketcher.Constraint("Symmetric", 2, 2, 4, 2, -1, 1),
    Sketcher.Constraint("Symmetric", 0, 2, 6, 2, -1, 1),
    Sketcher.Constraint("Vertical", 3, 2, 4, 2),
    Sketcher.Constraint("DistanceX", 1, 1, 1, 2, 0.8),
    Sketcher.Constraint("DistanceY", 0, 1, 0, 2, 2.9),
    Sketcher.Constraint("DistanceY", 3, 2, 4, 2, 9.0),
])
pad6 = body.newObject("PartDesign::Pad", "Pad005")
pad6.Profile = sketch8
pad6.Length = 0.25
pad6.Reversed = True

doc.recompute()
